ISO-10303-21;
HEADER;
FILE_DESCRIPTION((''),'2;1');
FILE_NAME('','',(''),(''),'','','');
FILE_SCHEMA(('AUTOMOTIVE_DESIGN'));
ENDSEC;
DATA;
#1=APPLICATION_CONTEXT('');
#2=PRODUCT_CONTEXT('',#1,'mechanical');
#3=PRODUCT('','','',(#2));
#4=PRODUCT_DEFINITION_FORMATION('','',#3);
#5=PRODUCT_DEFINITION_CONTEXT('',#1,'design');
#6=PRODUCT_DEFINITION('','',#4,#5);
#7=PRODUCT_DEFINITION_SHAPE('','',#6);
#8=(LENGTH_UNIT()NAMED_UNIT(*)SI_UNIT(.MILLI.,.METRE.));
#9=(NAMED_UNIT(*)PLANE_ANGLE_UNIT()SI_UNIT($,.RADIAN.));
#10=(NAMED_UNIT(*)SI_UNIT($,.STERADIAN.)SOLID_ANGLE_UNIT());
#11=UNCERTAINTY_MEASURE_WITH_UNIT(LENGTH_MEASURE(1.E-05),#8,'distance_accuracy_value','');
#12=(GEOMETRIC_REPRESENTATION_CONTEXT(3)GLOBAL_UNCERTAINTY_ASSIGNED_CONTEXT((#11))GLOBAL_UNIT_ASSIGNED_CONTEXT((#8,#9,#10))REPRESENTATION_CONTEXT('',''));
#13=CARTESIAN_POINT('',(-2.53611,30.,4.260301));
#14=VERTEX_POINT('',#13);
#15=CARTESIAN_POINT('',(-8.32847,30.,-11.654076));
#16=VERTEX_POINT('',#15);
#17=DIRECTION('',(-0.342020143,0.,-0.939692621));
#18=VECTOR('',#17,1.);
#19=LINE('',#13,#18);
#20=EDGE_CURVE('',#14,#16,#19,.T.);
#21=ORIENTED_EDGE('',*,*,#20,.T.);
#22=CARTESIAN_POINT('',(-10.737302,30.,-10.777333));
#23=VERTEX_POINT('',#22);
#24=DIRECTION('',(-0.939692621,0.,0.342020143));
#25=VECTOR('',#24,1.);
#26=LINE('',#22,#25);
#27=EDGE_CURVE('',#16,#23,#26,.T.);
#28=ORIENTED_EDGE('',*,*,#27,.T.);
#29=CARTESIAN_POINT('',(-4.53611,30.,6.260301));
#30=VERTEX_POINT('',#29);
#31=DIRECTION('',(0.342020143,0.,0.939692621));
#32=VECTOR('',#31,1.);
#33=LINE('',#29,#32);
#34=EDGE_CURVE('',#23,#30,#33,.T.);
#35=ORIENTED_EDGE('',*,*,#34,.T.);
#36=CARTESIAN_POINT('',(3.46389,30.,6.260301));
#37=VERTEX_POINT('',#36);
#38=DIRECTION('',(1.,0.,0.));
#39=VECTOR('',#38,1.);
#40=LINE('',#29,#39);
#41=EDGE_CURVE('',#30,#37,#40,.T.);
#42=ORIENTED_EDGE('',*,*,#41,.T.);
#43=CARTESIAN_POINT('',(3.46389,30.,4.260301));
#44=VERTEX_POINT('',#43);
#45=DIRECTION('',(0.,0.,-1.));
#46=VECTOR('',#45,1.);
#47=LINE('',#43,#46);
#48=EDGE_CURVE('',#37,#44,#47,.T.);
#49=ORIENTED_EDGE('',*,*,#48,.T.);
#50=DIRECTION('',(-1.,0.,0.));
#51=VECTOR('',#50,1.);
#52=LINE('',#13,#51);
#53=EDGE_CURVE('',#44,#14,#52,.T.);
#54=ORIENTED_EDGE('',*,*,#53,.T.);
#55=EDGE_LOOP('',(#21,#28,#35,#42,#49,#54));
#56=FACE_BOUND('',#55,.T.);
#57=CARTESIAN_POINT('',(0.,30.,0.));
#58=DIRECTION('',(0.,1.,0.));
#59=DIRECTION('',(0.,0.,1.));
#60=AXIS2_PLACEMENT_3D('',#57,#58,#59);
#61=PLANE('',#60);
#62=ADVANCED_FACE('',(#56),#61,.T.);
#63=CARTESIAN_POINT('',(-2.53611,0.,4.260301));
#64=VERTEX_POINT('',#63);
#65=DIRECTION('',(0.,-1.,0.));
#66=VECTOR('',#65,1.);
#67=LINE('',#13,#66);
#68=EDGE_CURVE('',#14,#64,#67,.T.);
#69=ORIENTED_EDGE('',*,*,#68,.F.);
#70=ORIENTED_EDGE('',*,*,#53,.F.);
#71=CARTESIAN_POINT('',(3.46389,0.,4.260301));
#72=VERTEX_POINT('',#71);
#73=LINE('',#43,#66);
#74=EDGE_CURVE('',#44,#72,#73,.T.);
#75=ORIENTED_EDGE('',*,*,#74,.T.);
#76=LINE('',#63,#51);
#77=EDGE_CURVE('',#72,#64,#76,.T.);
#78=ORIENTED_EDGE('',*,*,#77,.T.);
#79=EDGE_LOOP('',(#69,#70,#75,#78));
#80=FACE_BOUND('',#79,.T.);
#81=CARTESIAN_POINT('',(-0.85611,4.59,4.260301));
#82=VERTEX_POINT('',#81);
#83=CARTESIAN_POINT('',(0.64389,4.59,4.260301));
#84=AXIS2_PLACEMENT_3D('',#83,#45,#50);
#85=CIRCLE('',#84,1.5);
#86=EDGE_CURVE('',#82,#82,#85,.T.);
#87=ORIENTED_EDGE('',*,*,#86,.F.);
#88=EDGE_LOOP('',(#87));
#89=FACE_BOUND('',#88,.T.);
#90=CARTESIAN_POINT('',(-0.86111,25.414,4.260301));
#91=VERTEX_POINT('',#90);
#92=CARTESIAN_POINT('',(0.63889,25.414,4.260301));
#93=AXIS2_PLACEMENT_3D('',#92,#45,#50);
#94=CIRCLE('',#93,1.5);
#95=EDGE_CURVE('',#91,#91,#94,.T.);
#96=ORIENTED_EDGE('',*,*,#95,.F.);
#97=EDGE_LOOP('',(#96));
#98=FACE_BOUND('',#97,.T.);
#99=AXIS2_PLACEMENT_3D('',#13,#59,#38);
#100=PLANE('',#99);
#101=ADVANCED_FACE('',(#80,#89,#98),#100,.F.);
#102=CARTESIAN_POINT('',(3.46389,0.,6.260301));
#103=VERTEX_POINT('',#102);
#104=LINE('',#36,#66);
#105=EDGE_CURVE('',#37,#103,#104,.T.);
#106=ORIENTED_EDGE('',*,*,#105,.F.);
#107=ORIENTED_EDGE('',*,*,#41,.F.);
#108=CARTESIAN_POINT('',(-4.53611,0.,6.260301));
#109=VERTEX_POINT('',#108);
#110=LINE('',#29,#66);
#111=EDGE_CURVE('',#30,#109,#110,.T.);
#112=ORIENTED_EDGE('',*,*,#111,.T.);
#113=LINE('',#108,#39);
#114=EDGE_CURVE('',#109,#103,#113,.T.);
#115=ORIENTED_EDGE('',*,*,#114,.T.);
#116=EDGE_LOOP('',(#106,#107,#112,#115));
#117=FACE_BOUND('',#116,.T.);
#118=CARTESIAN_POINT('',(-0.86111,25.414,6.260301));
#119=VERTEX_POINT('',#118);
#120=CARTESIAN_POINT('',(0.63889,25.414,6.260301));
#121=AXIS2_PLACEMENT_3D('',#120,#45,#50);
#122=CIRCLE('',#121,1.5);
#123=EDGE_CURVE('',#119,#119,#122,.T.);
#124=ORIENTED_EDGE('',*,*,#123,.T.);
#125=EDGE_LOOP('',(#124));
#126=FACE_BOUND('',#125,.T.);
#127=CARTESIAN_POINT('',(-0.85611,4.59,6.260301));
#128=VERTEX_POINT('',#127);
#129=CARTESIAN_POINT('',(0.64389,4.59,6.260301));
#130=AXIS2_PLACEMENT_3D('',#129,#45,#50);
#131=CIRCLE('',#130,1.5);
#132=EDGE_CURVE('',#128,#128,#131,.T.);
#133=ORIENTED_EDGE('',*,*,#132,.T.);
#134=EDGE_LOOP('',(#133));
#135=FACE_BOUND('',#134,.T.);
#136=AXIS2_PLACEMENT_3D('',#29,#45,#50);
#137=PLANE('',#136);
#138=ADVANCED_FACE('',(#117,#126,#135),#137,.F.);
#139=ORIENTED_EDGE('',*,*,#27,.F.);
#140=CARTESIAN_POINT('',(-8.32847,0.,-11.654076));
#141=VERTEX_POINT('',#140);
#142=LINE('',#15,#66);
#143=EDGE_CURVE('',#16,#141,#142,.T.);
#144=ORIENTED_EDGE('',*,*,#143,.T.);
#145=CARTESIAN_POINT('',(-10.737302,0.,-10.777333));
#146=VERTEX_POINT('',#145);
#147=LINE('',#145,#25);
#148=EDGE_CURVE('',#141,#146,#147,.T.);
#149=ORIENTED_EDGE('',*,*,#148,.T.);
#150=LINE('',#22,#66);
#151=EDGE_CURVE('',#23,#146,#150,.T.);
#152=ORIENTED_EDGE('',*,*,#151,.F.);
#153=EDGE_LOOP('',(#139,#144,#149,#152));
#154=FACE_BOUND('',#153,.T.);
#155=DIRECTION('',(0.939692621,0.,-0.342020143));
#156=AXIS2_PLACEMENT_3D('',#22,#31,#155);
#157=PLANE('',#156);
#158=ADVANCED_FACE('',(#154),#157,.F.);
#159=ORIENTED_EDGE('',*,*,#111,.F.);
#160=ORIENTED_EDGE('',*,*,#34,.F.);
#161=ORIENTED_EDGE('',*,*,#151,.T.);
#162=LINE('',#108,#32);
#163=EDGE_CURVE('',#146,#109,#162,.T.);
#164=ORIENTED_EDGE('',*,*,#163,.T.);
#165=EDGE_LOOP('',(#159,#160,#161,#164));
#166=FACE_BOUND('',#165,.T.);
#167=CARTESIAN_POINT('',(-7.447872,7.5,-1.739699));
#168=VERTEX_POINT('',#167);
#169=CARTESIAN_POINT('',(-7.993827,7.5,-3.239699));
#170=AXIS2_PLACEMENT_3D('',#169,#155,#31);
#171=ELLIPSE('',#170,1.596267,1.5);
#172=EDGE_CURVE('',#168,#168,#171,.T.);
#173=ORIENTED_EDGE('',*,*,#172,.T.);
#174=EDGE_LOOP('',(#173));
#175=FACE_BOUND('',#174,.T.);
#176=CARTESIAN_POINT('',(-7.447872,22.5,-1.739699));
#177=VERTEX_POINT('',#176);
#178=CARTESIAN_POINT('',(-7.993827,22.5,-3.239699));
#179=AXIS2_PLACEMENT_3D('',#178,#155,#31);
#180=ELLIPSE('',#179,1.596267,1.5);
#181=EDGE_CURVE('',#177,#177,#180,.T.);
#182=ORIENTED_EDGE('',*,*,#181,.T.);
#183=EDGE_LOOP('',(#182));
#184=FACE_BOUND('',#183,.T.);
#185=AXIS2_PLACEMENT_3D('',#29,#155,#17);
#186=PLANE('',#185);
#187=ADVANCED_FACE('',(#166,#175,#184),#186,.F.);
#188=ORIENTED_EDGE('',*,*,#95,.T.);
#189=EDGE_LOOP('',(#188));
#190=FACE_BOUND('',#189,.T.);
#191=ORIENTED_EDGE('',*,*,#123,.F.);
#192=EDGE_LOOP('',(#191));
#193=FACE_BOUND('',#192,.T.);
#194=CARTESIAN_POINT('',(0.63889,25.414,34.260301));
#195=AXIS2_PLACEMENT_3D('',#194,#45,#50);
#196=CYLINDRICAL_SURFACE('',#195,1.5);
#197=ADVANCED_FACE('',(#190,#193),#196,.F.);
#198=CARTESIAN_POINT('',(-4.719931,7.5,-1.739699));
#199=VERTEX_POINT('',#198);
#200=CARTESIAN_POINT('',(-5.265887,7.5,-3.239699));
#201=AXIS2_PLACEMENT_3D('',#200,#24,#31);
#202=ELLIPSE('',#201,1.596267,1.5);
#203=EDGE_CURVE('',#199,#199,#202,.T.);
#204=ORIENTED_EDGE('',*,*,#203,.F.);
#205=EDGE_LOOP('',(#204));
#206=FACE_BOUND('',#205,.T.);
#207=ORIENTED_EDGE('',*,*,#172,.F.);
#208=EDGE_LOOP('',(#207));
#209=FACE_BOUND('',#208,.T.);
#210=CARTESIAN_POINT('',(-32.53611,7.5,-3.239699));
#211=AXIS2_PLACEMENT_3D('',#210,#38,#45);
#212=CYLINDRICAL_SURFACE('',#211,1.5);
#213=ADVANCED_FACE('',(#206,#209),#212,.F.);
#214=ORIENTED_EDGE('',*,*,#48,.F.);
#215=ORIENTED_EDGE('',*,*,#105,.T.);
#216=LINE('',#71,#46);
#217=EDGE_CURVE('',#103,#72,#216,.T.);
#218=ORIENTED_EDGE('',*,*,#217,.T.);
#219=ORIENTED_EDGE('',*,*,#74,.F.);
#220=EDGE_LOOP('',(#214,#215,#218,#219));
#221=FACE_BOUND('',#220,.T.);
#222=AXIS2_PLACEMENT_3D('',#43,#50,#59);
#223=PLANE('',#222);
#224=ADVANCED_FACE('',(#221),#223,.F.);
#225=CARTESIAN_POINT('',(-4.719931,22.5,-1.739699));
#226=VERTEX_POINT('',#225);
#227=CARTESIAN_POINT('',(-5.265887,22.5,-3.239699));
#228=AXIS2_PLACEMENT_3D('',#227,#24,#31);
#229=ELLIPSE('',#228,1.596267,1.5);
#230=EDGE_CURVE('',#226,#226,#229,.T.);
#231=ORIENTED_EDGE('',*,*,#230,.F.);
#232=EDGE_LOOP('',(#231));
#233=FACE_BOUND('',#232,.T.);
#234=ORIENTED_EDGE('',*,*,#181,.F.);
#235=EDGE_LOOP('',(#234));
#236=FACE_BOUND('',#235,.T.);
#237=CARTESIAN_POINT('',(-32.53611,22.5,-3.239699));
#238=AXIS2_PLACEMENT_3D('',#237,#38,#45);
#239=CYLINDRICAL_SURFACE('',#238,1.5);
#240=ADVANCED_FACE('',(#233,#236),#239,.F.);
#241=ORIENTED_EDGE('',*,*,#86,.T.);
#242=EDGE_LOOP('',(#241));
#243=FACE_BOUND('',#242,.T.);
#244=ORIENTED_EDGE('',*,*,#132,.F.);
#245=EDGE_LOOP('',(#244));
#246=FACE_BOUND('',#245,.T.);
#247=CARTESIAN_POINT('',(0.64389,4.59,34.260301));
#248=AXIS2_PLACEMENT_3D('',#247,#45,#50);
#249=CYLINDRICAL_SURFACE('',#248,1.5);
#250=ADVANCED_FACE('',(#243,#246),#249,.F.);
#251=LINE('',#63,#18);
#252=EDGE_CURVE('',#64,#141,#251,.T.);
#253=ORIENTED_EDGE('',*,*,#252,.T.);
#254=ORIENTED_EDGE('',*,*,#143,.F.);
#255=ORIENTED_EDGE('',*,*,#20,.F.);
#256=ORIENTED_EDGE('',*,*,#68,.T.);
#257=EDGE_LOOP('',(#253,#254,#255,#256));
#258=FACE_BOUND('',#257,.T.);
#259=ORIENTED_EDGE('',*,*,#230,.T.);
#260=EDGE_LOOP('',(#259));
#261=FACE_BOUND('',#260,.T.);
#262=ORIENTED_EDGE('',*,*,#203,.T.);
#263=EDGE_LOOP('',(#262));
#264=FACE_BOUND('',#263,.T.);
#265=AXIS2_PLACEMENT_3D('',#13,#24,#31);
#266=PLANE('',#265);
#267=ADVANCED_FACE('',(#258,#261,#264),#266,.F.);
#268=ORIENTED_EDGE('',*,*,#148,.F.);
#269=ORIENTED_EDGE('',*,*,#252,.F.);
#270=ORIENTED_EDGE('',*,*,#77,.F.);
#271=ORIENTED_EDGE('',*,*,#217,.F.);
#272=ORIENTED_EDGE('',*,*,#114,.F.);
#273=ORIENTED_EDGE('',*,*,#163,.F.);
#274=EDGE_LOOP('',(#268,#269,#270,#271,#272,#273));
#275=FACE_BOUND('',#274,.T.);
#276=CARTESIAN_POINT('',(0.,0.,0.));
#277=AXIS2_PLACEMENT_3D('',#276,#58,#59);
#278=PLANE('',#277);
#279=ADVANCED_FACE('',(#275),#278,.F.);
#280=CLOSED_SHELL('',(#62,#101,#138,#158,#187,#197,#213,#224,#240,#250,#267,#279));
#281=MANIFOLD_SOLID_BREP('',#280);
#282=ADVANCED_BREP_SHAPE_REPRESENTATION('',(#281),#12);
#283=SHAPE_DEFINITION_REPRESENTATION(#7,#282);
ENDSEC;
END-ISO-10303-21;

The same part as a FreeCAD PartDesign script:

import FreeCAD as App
import Part
import Sketcher
Q = App.Units.Quantity

doc = App.newDocument("Part")
body = doc.addObject("PartDesign::Body", "Body")

sketch1 = doc.addObject("Sketcher::SketchObject", "Sketch")
body.addObject(sketch1)
sketch1.AttachmentSupport = (doc.XZ_Plane, [""])
sketch1.MapMode = "FlatFace"
sketch1.addGeometry(Part.LineSegment(App.Vector(-4.5, 6.3, 0), App.Vector(3.5, 6.3, 0)), False)
sketch1.addGeometry(Part.LineSegment(App.Vector(3.5, 6.3, 0), App.Vector(3.5, 4.3, 0)), False)
sketch1.addGeometry(Part.LineSegment(App.Vector(3.5, 4.3, 0), App.Vector(-2.5, 4.3, 0)), False)
sketch1.addGeometry(Part.LineSegment(App.Vector(-2.5, 4.3, 0), App.Vector(-8.3, -11.7, 0)), False)
sketch1.addGeometry(Part.LineSegment(App.Vector(-8.3, -11.7, 0), App.Vector(-10.7, -10.8, 0)), False)
sketch1.addGeometry(Part.LineSegment(App.Vector(-10.7, -10.8, 0), App.Vector(-4.5, 6.3, 0)), False)
sketch1.addConstraint(Sketcher.Constraint("Coincident", 0, 2, 1, 1))
sketch1.addConstraint(Sketcher.Constraint("Coincident", 1, 2, 2, 1))
sketch1.addConstraint(Sketcher.Constraint("Coincident", 2, 2, 3, 1))
sketch1.addConstraint(Sketcher.Constraint("Coincident", 3, 2, 4, 1))
sketch1.addConstraint(Sketcher.Constraint("Coincident", 4, 2, 5, 1))
sketch1.addConstraint(Sketcher.Constraint("Coincident", 5, 2, 0, 1))
sketch1.addConstraint(Sketcher.Constraint("Horizontal", 0))
sketch1.addConstraint(Sketcher.Constraint("Vertical", 1))
sketch1.addConstraint(Sketcher.Constraint("Horizontal", 2))
sketch1.addConstraint(Sketcher.Constraint("Perpendicular", 3, 4))
sketch1.addConstraint(Sketcher.Constraint("Perpendicular", 4, 5))
sketch1.addConstraint(Sketcher.Constraint("DistanceX", 0, 1, 0, 2, Q("8 mm")))
sketch1.addConstraint(Sketcher.Constraint("DistanceX", 2, 2, 2, 1, Q("6 mm")))
sketch1.addConstraint(Sketcher.Constraint("DistanceY", 1, 2, 1, 1, Q("2 mm")))
sketch1.addConstraint(Sketcher.Constraint("Angle", 3, Q("-110 deg")))
sketch1.addConstraint(Sketcher.Constraint("DistanceY", -1, 1, 0, 2, Q("6.260301 mm")))
sketch1.addConstraint(Sketcher.Constraint("DistanceX", 4, 2, -1, 1, Q("10.737302 mm")))
sketch1.addConstraint(Sketcher.Constraint("DistanceX", -1, 1, 0, 2, Q("3.46389 mm")))
pad1 = doc.addObject("PartDesign::Pad", "Pad")
body.addObject(pad1)
pad1.Profile = sketch1
pad1.Length = 30
pad1.Reversed = True

sketch2 = doc.addObject("Sketcher::SketchObject", "Sketch001")
body.addObject(sketch2)
sketch2.AttachmentSupport = (doc.XY_Plane, [""])
sketch2.MapMode = "FlatFace"
sketch2.AttachmentOffset = App.Placement(App.Vector(0, 0, 4.260301), App.Rotation())
sketch2.addGeometry(Part.Circle(App.Vector(0.6, 25.4, 0), App.Vector(0, 0, 1), 1.5), False)
sketch2.addGeometry(Part.Circle(App.Vector(0.6, 4.6, 0), App.Vector(0, 0, 1), 1.5), False)
sketch2.addConstraint(Sketcher.Constraint("Equal", 0, 1))
sketch2.addConstraint(Sketcher.Constraint("Diameter", 0, Q("3 mm")))
sketch2.addConstraint(Sketcher.Constraint("DistanceY", -1, 1, 1, 3, Q("4.59 mm")))
sketch2.addConstraint(Sketcher.Constraint("DistanceY", -1, 1, 0, 3, Q("25.414 mm")))
sketch2.addConstraint(Sketcher.Constraint("DistanceX", 0, 3, 1, 3, Q("0.005 mm")))
sketch2.addConstraint(Sketcher.Constraint("DistanceX", -1, 1, 0, 3, Q("0.63889 mm")))
pocket1 = doc.addObject("PartDesign::Pocket", "Pocket")
body.addObject(pocket1)
pocket1.Profile = sketch2
pocket1.Length = 30
pocket1.Reversed = True

sketch3 = doc.addObject("Sketcher::SketchObject", "Sketch002")
body.addObject(sketch3)
sketch3.AttachmentSupport = (doc.YZ_Plane, [""])
sketch3.MapMode = "FlatFace"
sketch3.AttachmentOffset = App.Placement(App.Vector(0, 0, -2.53611), App.Rotation())
sketch3.addGeometry(Part.Circle(App.Vector(22.5, -3.2, 0), App.Vector(0, 0, 1), 1.5), False)
sketch3.addGeometry(Part.Circle(App.Vector(7.5, -3.2, 0), App.Vector(0, 0, 1), 1.5), False)
sketch3.addConstraint(Sketcher.Constraint("Equal", 0, 1))
sketch3.addConstraint(Sketcher.Constraint("Horizontal", 0, 3, 1, 3))
sketch3.addConstraint(Sketcher.Constraint("Diameter", 0, Q("3 mm")))
sketch3.addConstraint(Sketcher.Constraint("DistanceX", 1, 3, 0, 3, Q("15 mm")))
sketch3.addConstraint(Sketcher.Constraint("DistanceX", -1, 1, 0, 3, Q("22.5 mm")))
sketch3.addConstraint(Sketcher.Constraint("DistanceY", 0, 3, -1, 1, Q("3.239699 mm")))
pocket2 = doc.addObject("PartDesign::Pocket", "Pocket001")
body.addObject(pocket2)
pocket2.Profile = sketch3
pocket2.Length = 30

doc.recompute()
